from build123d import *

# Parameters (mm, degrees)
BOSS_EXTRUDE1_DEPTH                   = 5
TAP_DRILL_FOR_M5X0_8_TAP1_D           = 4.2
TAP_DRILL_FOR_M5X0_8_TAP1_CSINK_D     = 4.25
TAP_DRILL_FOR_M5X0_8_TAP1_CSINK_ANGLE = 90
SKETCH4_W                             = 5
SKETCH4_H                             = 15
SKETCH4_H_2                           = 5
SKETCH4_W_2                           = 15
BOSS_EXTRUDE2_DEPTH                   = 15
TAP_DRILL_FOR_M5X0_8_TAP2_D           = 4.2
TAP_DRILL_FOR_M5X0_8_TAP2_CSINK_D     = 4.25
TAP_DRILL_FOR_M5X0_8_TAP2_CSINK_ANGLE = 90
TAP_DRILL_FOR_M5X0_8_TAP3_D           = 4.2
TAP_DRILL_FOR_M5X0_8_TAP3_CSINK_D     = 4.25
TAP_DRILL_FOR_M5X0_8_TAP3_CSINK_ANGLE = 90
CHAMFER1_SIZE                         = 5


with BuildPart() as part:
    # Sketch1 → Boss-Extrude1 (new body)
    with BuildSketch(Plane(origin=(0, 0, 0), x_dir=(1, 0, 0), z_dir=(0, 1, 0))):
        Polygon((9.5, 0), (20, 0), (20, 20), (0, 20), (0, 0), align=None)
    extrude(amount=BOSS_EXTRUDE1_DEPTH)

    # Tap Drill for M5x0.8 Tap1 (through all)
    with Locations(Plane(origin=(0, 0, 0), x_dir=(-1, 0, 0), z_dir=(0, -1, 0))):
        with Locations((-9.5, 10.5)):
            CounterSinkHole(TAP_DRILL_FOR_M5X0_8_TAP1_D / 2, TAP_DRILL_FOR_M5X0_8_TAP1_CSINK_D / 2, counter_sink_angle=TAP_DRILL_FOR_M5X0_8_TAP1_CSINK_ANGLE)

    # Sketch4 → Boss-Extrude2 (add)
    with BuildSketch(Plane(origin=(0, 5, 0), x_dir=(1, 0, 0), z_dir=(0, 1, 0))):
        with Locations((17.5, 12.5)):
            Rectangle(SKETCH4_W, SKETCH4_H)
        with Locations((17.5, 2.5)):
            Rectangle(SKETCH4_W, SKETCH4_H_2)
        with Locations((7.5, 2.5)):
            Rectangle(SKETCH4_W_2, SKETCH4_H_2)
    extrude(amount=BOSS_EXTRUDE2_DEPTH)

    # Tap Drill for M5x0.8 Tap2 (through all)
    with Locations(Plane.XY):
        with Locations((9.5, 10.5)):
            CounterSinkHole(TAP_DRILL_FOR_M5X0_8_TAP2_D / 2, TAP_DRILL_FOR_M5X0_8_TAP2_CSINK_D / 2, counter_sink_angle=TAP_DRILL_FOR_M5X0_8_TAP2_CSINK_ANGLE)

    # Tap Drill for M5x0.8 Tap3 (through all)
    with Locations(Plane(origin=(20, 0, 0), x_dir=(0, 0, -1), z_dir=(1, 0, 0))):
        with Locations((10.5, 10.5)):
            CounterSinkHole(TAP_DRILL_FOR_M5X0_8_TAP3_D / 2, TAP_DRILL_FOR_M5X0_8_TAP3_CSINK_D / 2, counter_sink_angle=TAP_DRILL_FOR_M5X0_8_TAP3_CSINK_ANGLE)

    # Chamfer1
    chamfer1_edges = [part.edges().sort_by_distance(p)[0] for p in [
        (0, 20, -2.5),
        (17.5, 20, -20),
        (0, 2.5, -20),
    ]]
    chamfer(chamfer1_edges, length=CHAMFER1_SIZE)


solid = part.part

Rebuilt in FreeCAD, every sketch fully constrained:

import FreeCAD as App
import Part
import Sketcher

V = App.Vector
Q = App.Units.Quantity


def edges_at(feature, points):
    """Names of the edges that pass closest to the given points."""
    edges = feature.Shape.Edges
    near = lambda p: min(range(len(edges)), key=lambda i: edges[i].distToShape(Part.Vertex(*p))[0])
    return sorted({f"Edge{near(p) + 1}" for p in points})

doc = App.newDocument("Part")
body = doc.addObject("PartDesign::Body", "Body")

# Sketch on XZ plane
sketch1 = body.newObject("Sketcher::SketchObject", "Sketch")
sketch1.AttachmentSupport = (doc.getObject("XZ_Plane"), [""])
sketch1.MapMode = "FlatFace"
sketch1.addGeometry([
    Part.LineSegment(V(20, 0, 0), V(20, -20, 0)),
    Part.LineSegment(V(20, -20, 0), V(0, -20, 0)),
    Part.LineSegment(V(0, -20, 0), V(0, 0, 0)),
    Part.LineSegment(V(0, 0, 0), V(20, 0, 0)),
], False)
sketch1.addConstraint([
    Sketcher.Constraint("Coincident", 0, 2, 1, 1),
    Sketcher.Constraint("Coincident", 1, 2, 2, 1),
    Sketcher.Constraint("Coincident", 2, 2, 3, 1),
    Sketcher.Constraint("Coincident", 3, 2, 0, 1),
    Sketcher.Constraint("Vertical", 0),
    Sketcher.Constraint("Horizontal", 1),
    Sketcher.Constraint("Vertical", 2),
    Sketcher.Constraint("Horizontal", 3),
    Sketcher.Constraint("Coincident", 2, 2, -1, 1),
    Sketcher.Constraint("Equal", 3, 0),
    Sketcher.Constraint("DistanceX", 1, 2, 1, 1, Q("20 mm")),
])
pad1 = body.newObject("PartDesign::Pad", "Pad")
pad1.Profile = sketch1
pad1.Length = 5
pad1.Reversed = True

# Sketch on XZ plane
sketch2 = body.newObject("Sketcher::SketchObject", "Sketch001")
sketch2.AttachmentSupport = (doc.getObject("XZ_Plane"), [""])
sketch2.MapMode = "FlatFace"
sketch2.addGeometry(Part.Circle(V(9.5, -10.5, 0), V(0, 0, 1), 2.1), False)
sketch2.addConstraint([
    Sketcher.Constraint("Diameter", 0, Q("4.2 mm")),
    Sketcher.Constraint("DistanceX", -1, 1, 0, 3, Q("9.5 mm")),
    Sketcher.Constraint("DistanceY", 0, 3, -1, 1, Q("10.5 mm")),
])
doc.recompute()
hole = body.newObject("PartDesign::Hole", "Hole")
hole.Profile = sketch2
hole.ThreadType = "None"
hole.Diameter = 4.2
hole.DepthType = "ThroughAll"
hole.HoleCutType = "Countersink"
hole.HoleCutDiameter = 4.25
hole.HoleCutCountersinkAngle = 90

# Sketch on XZ plane
sketch3 = body.newObject("Sketcher::SketchObject", "Sketch002")
sketch3.AttachmentSupport = (doc.getObject("XZ_Plane"), [""])
sketch3.MapMode = "FlatFace"
sketch3.AttachmentOffset = App.Placement(V(0, 0, -5), App.Rotation())
sketch3.addGeometry([
    Part.LineSegment(V(15, -20, 0), V(15, -5, 0)),  # 0
    Part.LineSegment(V(15, -5, 0), V(0, -5, 0)),  # 1
    Part.LineSegment(V(0, -5, 0), V(0, 0, 0)),  # 2
    Part.LineSegment(V(0, 0, 0), V(20, 0, 0)),  # 3
    Part.LineSegment(V(20, 0, 0), V(20, -20, 0)),  # 4
    Part.LineSegment(V(20, -20, 0), V(15, -20, 0)),  # 5
], False)
sketch3.addConstraint([
    Sketcher.Constraint("Coincident", 0, 2, 1, 1),
    Sketcher.Constraint("Coincident", 1, 2, 2, 1),
    Sketcher.Constraint("Coincident", 2, 2, 3, 1),
    Sketcher.Constraint("Coincident", 3, 2, 4, 1),
    Sketcher.Constraint("Coincident", 4, 2, 5, 1),
    Sketcher.Constraint("Coincident", 5, 2, 0, 1),
    Sketcher.Constraint("Vertical", 0),
    Sketcher.Constraint("Horizontal", 1),
    Sketcher.Constraint("Vertical", 2),
    Sketcher.Constraint("Horizontal", 3),
    Sketcher.Constraint("Vertical", 4),
    Sketcher.Constraint("Horizontal", 5),
    Sketcher.Constraint("Coincident", 2, 2, -1, 1),
    Sketcher.Constraint("Equal", 1, 0),
    Sketcher.Constraint("Equal", 5, 2),
    Sketcher.Constraint("DistanceX", 1, 2, 1, 1, Q("15 mm")),
    Sketcher.Constraint("DistanceX", 3, 1, 3, 2, Q("20 mm")),
])
pad2 = body.newObject("PartDesign::Pad", "Pad001")
pad2.Profile = sketch3
pad2.Length = 15
pad2.Reversed = True

# Sketch on XY plane
sketch4 = body.newObject("Sketcher::SketchObject", "Sketch003")
sketch4.AttachmentSupport = (doc.getObject("XY_Plane"), [""])
sketch4.MapMode = "FlatFace"
sketch4.addGeometry(Part.Circle(V(9.5, 10.5, 0), V(0, 0, 1), 2.1), False)
sketch4.addConstraint([
    Sketcher.Constraint("Diameter", 0, Q("4.2 mm")),
    Sketcher.Constraint("DistanceX", -1, 1, 0, 3, Q("9.5 mm")),
    Sketcher.Constraint("DistanceY", -1, 1, 0, 3, Q("10.5 mm")),
])
doc.recompute()
hole2 = body.newObject("PartDesign::Hole", "Hole001")
hole2.Profile = sketch4
hole2.ThreadType = "None"
hole2.Diameter = 4.2
hole2.DepthType = "ThroughAll"
hole2.HoleCutType = "Countersink"
hole2.HoleCutDiameter = 4.25
hole2.HoleCutCountersinkAngle = 90

# Sketch on YZ plane
sketch5 = body.newObject("Sketcher::SketchObject", "Sketch004")
sketch5.AttachmentSupport = (doc.getObject("YZ_Plane"), [""])
sketch5.MapMode = "FlatFace"
sketch5.AttachmentOffset = App.Placement(V(0, 0, 20), App.Rotation())
sketch5.addGeometry(Part.Circle(V(10.5, -10.5, 0), V(0, 0, 1), 2.1), False)
sketch5.addConstraint([
    Sketcher.Constraint("Diameter", 0, Q("4.2 mm")),
    Sketcher.Constraint("DistanceX", -1, 1, 0, 3, Q("10.5 mm")),
    Sketcher.Constraint("DistanceY", 0, 3, -1, 1, Q("10.5 mm")),
])
doc.recompute()
hole3 = body.newObject("PartDesign::Hole", "Hole002")
hole3.Profile = sketch5
hole3.ThreadType = "None"
hole3.Diameter = 4.2
hole3.DepthType = "ThroughAll"
hole3.HoleCutType = "Countersink"
hole3.HoleCutDiameter = 4.25
hole3.HoleCutCountersinkAngle = 90
doc.recompute()

chamfer = body.newObject("PartDesign::Chamfer", "Chamfer")
chamfer.Base = (hole3, edges_at(hole3, [(0, 20, -2.5), (17.5, 20, -20), (0, 2.5, -20)]))
chamfer.Size = 5

doc.recompute()
